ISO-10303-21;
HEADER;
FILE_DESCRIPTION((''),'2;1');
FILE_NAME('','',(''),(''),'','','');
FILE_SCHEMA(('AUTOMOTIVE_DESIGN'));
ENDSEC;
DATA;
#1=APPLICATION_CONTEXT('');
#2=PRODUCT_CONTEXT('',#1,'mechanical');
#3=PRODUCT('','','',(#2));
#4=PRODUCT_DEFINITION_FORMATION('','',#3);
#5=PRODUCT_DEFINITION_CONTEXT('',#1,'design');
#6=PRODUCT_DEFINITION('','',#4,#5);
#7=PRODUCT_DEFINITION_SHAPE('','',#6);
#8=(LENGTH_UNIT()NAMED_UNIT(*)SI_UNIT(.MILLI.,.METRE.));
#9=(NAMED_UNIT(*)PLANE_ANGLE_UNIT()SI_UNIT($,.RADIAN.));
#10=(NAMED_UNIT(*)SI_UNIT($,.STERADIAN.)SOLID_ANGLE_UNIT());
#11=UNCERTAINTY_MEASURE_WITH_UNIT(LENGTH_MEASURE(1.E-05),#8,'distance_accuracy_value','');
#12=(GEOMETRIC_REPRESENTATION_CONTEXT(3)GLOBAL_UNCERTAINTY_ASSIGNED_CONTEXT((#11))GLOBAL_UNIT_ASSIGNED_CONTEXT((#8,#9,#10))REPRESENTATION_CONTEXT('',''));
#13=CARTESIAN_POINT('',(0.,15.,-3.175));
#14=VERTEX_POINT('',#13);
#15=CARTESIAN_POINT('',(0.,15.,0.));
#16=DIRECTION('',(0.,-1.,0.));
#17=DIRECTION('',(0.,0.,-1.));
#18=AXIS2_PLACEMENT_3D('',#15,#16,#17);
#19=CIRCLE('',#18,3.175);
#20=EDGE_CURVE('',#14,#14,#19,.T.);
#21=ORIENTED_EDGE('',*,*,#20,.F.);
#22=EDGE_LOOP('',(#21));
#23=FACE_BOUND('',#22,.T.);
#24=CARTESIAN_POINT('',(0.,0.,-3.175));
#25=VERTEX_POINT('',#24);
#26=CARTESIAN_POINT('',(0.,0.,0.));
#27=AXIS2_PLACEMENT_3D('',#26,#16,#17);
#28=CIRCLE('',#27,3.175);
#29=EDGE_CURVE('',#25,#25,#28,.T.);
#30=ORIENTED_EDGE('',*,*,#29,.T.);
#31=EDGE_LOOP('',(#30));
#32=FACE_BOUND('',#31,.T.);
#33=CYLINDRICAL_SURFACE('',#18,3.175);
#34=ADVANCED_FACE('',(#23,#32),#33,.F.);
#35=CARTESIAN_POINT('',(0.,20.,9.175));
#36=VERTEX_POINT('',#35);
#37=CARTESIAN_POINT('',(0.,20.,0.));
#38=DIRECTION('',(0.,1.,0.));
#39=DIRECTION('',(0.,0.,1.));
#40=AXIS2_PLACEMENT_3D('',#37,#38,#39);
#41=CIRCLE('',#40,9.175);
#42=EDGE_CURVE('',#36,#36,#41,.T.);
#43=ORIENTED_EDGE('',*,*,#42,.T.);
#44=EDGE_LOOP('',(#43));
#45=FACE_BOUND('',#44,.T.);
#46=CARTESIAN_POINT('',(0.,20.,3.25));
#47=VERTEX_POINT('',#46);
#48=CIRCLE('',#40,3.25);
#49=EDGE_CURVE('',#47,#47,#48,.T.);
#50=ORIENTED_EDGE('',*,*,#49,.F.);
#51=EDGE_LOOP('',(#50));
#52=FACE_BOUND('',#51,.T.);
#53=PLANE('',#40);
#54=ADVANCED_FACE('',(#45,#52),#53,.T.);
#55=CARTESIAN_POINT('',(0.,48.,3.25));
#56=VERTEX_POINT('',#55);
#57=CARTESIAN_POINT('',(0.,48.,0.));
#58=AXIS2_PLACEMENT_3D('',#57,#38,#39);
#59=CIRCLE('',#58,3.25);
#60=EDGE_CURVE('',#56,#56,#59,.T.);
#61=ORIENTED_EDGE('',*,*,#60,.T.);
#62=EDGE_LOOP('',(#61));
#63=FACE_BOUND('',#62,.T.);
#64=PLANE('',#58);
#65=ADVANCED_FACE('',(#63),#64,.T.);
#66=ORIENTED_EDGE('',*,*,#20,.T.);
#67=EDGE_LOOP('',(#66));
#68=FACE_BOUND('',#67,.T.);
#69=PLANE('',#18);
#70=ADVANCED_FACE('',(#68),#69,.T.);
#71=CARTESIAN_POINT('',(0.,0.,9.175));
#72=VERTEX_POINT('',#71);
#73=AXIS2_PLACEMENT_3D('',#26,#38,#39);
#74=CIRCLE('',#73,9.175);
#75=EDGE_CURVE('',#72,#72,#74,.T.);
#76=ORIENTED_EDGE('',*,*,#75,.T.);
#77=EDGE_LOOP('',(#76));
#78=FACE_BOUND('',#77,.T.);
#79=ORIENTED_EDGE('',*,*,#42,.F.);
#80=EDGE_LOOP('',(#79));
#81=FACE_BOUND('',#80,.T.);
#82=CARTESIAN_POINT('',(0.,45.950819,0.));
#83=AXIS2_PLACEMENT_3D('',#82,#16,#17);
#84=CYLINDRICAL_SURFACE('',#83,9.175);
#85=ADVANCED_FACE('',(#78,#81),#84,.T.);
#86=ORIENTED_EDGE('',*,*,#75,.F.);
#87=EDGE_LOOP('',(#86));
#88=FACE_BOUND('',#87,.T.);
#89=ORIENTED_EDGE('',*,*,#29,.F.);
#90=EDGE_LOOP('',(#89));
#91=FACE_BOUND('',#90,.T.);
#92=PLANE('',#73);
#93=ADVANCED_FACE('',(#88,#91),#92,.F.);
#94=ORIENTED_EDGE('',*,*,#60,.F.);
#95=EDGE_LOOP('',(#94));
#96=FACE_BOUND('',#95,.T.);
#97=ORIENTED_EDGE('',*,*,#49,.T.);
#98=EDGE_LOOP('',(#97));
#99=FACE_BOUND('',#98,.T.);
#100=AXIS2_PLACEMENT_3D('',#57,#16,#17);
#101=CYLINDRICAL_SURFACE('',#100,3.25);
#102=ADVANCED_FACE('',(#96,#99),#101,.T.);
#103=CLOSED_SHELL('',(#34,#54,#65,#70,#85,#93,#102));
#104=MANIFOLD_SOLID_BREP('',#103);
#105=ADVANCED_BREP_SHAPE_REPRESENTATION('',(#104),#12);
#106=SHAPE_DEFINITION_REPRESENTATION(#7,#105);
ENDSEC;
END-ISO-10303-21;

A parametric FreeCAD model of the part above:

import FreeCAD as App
import Part
import Sketcher

V = App.Vector

doc = App.newDocument("Part")
params = doc.addObject("Spreadsheet::Sheet", "Params")
for row, (alias, value) in enumerate([
    ("sketch1_diameter", "18.35 mm"),
    ("pad1_length", "20 mm"),
    ("sketch2_diameter", "6.5 mm"),
    ("pad2_length", "28 mm"),
    ("sketch3_diameter", "6.35 mm"),
    ("pocket1_length", "15 mm"),
], start=1):
    params.set(f"A{row}", alias)
    params.set(f"B{row}", "=" + value)
    params.setAlias(f"B{row}", alias)

body = doc.addObject("PartDesign::Body", "Body")

sketch1 = body.newObject("Sketcher::SketchObject", "Sketch")
sketch1.AttachmentSupport = (doc.getObject("XZ_Plane"), [""])
sketch1.MapMode = "FlatFace"
sketch1.addGeometry(Part.Circle(V(0, 0, 0), V(0, 0, 1), 9.175), False)
sketch1.addConstraint(Sketcher.Constraint("Coincident", 0, 3, -1, 1))
sketch1.addConstraint(Sketcher.Constraint("Diameter", 0, 18.35))
sketch1.setExpression("Constraints[1]", "Params.sketch1_diameter")
pad1 = body.newObject("PartDesign::Pad", "Pad")
pad1.Profile = sketch1
pad1.setExpression("Length", "Params.pad1_length")
pad1.Reversed = True

sketch2 = body.newObject("Sketcher::SketchObject", "Sketch001")
sketch2.AttachmentSupport = (doc.getObject("XZ_Plane"), [""])
sketch2.MapMode = "FlatFace"
sketch2.AttachmentOffset = App.Placement(V(0, 0, -20), App.Rotation())
sketch2.addGeometry(Part.Circle(V(0, 0, 0), V(0, 0, 1), 3.25), False)
sketch2.addConstraint(Sketcher.Constraint("Coincident", 0, 3, -1, 1))
sketch2.addConstraint(Sketcher.Constraint("Diameter", 0, 6.5))
sketch2.setExpression("Constraints[1]", "Params.sketch2_diameter")
pad2 = body.newObject("PartDesign::Pad", "Pad001")
pad2.Profile = sketch2
pad2.setExpression("Length", "Params.pad2_length")
pad2.Reversed = True

sketch3 = body.newObject("Sketcher::SketchObject", "Sketch002")
sketch3.AttachmentSupport = (doc.getObject("XZ_Plane"), [""])
sketch3.MapMode = "FlatFace"
sketch3.addGeometry(Part.Circle(V(0, 0, 0), V(0, 0, 1), 3.175), False)
sketch3.addConstraint(Sketcher.Constraint("Coincident", 0, 3, -1, 1))
sketch3.addConstraint(Sketcher.Constraint("Diameter", 0, 6.35))
sketch3.setExpression("Constraints[1]", "Params.sketch3_diameter")
pocket1 = body.newObject("PartDesign::Pocket", "Pocket")
pocket1.Profile = sketch3
pocket1.setExpression("Length", "Params.pocket1_length")

doc.recompute()
